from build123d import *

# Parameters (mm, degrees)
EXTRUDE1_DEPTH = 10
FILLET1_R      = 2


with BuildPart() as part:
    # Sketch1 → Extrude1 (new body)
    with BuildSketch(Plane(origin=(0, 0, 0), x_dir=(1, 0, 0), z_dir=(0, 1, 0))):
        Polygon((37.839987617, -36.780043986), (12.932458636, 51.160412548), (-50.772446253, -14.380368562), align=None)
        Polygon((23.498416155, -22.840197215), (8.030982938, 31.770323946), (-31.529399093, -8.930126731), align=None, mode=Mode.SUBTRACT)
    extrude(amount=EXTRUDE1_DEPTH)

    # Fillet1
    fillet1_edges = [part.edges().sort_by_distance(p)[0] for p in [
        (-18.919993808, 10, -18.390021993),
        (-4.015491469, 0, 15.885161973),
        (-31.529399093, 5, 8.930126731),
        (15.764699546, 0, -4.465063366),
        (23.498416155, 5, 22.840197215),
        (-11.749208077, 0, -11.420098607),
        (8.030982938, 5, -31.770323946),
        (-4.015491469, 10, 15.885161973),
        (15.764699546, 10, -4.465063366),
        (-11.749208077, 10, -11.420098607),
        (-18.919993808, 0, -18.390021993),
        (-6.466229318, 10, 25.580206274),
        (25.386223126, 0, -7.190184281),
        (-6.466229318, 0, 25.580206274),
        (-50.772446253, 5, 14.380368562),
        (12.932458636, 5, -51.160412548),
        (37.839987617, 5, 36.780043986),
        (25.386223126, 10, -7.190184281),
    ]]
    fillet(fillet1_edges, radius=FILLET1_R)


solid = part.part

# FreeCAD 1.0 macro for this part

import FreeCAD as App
import Part
import Sketcher
from FreeCAD import Vector

doc = App.newDocument("Part")
params = doc.addObject("Spreadsheet::Sheet", "Params")
for row, (alias, value) in enumerate([
    ("pad1_length", "10 mm"),
    ("fillet_radius", "2 mm"),
], start=1):
    params.set(f"A{row}", alias)
    params.set(f"B{row}", "=" + value)
    params.setAlias(f"B{row}", alias)

body = doc.addObject("PartDesign::Body", "Body")

# Sketch on XZ plane
sketch1 = body.newObject("Sketcher::SketchObject", "Sketch")
sketch1.AttachmentSupport = (doc.getObject("XZ_Plane"), [""])
sketch1.MapMode = "FlatFace"
sketch1.addGeometry([
    Part.LineSegment(Vector(37.839988, 36.780044, 0), Vector(12.932459, -51.160413, 0)),  # 0
    Part.LineSegment(Vector(12.932459, -51.160413, 0), Vector(-50.772446, 14.380369, 0)),  # 1
    Part.LineSegment(Vector(-50.772446, 14.380369, 0), Vector(37.839988, 36.780044, 0)),  # 2
    Part.LineSegment(Vector(8.030983, -31.770324, 0), Vector(23.498416, 22.840197, 0)),  # 3
    Part.LineSegment(Vector(23.498416, 22.840197, 0), Vector(-31.529399, 8.930127, 0)),  # 4
    Part.LineSegment(Vector(-31.529399, 8.930127, 0), Vector(8.030983, -31.770324, 0)),  # 5
], False)
sketch1.addConstraint([
    Sketcher.Constraint("Coincident", 0, 2, 1, 1),
    Sketcher.Constraint("Coincident", 1, 2, 2, 1),
    Sketcher.Constraint("Coincident", 2, 2, 0, 1),
    Sketcher.Constraint("Coincident", 3, 2, 4, 1),
    Sketcher.Constraint("Coincident", 4, 2, 5, 1),
    Sketcher.Constraint("Coincident", 5, 2, 3, 1),
    Sketcher.Constraint("Parallel", 0, 3),
    Sketcher.Constraint("Parallel", 2, 4),
    Sketcher.Constraint("Parallel", 1, 5),
    Sketcher.Constraint("Equal", 0, 1),
    Sketcher.Constraint("Equal", 1, 2),
    Sketcher.Constraint("DistanceX", 4, 2, -1, 1, 31.529399),
    Sketcher.Constraint("Distance", 0, 91.39972),
    Sketcher.Constraint("DistanceX", -1, 1, 0, 2, 12.932459),
    Sketcher.Constraint("DistanceY", -1, 1, 1, 2, 14.380369),
    Sketcher.Constraint("DistanceY", 0, 2, 1, 2, 65.540781),
    Sketcher.Constraint("DistanceX", 3, 2, 2, 2, 14.341571),
    Sketcher.Constraint("DistanceY", 0, 2, 3, 2, 74.00061),
])
pad1 = body.newObject("PartDesign::Pad", "Pad")
pad1.Profile = sketch1
pad1.setExpression("Length", "Params.pad1_length")
pad1.Reversed = True
doc.recompute()

fillet = body.newObject("PartDesign::Fillet", "Fillet")
fillet.Base = (pad1, ["Edge1"])
fillet.UseAllEdges = True
fillet.setExpression("Radius", "Params.fillet_radius")

doc.recompute()
